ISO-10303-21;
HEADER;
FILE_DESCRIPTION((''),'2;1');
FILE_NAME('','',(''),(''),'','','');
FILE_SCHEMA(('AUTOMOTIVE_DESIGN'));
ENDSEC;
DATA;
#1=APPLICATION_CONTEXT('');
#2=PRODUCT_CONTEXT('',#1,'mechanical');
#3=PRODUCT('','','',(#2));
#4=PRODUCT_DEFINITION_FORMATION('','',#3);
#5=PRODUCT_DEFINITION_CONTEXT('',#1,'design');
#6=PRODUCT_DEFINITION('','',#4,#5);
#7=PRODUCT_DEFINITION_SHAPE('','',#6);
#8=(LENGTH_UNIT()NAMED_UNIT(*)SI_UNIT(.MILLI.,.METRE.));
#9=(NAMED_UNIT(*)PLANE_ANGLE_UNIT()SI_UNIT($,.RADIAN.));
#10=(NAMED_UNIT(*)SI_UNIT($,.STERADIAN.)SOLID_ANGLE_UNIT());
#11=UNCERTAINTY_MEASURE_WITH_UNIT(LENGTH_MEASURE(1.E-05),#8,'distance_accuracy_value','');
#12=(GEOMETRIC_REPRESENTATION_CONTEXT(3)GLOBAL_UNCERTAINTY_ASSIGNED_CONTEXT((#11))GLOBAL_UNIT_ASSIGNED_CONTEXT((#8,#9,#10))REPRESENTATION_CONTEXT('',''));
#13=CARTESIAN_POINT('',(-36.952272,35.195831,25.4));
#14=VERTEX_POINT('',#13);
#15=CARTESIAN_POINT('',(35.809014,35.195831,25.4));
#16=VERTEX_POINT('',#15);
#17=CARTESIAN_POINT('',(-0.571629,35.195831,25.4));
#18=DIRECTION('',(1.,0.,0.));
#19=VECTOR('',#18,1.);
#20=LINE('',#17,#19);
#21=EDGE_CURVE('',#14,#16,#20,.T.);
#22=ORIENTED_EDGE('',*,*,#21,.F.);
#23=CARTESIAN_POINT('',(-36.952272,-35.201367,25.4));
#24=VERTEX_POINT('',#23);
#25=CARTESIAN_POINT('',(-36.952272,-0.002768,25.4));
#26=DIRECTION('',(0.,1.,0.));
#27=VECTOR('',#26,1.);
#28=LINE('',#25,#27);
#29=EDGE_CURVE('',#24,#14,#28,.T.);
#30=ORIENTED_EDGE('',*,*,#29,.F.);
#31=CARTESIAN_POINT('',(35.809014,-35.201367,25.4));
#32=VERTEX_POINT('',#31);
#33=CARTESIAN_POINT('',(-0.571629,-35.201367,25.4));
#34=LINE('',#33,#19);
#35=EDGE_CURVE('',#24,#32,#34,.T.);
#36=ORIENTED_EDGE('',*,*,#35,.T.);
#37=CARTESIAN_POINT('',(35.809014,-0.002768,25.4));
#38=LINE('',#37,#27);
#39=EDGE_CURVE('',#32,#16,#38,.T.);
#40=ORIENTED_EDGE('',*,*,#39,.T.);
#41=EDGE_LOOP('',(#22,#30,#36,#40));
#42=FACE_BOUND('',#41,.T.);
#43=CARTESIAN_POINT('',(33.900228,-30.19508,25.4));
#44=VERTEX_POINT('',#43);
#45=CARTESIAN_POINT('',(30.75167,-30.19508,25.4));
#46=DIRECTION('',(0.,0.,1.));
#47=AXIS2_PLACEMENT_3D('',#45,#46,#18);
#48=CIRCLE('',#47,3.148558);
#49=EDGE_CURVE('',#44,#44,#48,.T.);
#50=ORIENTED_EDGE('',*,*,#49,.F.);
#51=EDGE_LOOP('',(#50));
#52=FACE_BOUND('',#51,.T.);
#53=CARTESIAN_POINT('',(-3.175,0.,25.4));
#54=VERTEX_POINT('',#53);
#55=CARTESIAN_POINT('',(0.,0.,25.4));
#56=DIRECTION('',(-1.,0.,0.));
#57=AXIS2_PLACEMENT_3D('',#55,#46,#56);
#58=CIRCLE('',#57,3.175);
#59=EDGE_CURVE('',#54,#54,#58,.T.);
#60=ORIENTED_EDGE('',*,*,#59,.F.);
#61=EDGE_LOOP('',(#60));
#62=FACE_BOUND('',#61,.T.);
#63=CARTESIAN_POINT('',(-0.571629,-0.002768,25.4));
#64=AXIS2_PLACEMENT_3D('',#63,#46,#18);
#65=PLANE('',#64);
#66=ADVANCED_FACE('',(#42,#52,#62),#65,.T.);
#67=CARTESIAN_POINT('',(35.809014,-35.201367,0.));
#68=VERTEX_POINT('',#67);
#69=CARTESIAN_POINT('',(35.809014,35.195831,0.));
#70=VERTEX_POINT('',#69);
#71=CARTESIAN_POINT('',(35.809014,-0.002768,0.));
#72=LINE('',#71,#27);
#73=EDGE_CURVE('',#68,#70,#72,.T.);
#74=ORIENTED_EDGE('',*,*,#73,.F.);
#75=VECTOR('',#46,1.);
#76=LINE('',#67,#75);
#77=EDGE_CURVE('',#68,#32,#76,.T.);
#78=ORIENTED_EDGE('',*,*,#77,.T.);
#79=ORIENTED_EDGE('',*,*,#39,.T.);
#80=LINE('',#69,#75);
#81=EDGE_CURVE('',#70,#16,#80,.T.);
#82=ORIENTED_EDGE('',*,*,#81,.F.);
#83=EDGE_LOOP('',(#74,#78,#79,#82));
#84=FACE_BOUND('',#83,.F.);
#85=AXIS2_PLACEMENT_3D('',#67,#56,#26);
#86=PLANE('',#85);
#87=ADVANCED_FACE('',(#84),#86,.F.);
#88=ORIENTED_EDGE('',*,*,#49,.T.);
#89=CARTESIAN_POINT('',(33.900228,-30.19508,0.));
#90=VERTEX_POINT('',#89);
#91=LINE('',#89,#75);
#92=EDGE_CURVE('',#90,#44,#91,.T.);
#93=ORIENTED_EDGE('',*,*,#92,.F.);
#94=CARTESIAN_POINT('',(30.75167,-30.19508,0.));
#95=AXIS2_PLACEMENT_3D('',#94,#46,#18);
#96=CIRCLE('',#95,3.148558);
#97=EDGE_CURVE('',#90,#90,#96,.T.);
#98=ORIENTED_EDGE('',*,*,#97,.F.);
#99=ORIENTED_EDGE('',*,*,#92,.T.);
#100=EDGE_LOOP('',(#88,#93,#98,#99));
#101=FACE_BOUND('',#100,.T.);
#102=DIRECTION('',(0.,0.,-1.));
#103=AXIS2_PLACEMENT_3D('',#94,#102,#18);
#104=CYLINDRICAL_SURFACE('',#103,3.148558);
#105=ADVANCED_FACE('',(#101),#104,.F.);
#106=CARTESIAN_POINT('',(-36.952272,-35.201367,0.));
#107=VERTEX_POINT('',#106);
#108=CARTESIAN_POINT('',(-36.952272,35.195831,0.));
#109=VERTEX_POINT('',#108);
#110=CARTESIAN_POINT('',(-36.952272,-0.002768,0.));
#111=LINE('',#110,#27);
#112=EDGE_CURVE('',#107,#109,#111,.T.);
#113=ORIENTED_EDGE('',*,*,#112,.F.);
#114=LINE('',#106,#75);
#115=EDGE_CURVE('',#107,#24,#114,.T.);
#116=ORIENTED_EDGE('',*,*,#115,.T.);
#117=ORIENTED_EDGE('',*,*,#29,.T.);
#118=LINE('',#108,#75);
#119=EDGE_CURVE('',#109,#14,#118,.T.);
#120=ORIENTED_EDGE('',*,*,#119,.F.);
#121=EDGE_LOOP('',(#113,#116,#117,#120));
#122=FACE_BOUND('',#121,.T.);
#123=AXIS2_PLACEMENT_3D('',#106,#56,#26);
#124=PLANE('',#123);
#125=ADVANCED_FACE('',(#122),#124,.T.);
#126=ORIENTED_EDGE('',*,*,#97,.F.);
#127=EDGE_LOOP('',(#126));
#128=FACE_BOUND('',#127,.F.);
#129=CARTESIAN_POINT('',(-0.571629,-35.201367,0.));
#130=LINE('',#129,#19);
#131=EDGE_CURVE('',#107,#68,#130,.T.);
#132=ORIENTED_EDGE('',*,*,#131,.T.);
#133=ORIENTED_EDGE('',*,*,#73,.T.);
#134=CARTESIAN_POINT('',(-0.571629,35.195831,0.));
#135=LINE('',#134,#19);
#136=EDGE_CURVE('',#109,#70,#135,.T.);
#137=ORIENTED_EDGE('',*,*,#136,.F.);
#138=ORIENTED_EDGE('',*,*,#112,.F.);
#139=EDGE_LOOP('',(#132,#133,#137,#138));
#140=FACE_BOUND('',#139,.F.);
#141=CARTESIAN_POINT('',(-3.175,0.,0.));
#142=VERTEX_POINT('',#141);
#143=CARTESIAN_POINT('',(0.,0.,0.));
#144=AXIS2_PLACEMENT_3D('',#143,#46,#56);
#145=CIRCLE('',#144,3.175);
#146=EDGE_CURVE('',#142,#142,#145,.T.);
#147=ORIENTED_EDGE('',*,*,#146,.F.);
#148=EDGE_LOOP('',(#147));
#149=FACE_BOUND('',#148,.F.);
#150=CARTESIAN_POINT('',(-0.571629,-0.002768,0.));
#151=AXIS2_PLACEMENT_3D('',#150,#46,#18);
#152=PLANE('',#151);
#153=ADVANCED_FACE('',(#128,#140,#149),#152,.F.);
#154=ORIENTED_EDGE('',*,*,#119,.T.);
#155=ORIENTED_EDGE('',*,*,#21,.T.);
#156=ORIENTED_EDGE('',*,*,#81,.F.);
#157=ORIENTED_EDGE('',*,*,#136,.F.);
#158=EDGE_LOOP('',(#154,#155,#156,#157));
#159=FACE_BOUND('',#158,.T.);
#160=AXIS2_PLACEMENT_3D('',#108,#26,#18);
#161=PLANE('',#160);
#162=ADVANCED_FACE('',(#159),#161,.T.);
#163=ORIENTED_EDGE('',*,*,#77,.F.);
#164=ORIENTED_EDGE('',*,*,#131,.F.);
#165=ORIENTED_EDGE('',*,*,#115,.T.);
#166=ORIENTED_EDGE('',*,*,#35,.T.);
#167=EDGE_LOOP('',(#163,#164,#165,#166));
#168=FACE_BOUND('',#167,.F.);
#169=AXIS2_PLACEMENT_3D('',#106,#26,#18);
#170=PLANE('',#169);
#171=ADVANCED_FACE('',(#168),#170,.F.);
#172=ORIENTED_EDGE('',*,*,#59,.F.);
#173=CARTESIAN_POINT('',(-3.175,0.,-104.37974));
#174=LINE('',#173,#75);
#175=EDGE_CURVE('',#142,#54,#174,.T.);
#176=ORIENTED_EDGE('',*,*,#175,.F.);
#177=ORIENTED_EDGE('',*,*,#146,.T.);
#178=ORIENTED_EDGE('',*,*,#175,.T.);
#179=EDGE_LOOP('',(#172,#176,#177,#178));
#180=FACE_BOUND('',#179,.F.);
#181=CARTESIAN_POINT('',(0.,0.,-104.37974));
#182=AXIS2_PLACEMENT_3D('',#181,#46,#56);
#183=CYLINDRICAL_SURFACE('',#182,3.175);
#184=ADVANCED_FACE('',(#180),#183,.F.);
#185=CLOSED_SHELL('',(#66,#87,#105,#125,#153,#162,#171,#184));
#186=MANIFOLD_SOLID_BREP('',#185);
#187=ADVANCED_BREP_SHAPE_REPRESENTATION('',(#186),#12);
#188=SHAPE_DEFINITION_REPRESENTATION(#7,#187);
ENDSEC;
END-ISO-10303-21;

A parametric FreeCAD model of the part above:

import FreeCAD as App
import Part
import Sketcher

V = App.Vector
Q = App.Units.Quantity

doc = App.newDocument("Part")
body = doc.addObject("PartDesign::Body", "Body")

sketch1 = body.newObject("Sketcher::SketchObject", "Sketch")
sketch1.AttachmentSupport = (doc.getObject("XY_Plane"), [""])
sketch1.MapMode = "FlatFace"
sketch1.addGeometry([
    Part.LineSegment(V(-36.952272, 35.195831, 0), V(-36.952272, -35.201367, 0)),
    Part.LineSegment(V(-36.952272, -35.201367, 0), V(35.809014, -35.201367, 0)),
    Part.LineSegment(V(35.809014, -35.201367, 0), V(35.809014, 35.195831, 0)),
    Part.LineSegment(V(35.809014, 35.195831, 0), V(-36.952272, 35.195831, 0)),
], False)
sketch1.addConstraint([
    Sketcher.Constraint("Coincident", 0, 2, 1, 1),
    Sketcher.Constraint("Coincident", 1, 2, 2, 1),
    Sketcher.Constraint("Coincident", 2, 2, 3, 1),
    Sketcher.Constraint("Coincident", 3, 2, 0, 1),
    Sketcher.Constraint("Vertical", 0),
    Sketcher.Constraint("Horizontal", 1),
    Sketcher.Constraint("Vertical", 2),
    Sketcher.Constraint("Horizontal", 3),
    Sketcher.Constraint("DistanceY", 0, 2, 0, 1, Q("70.397198 mm")),
    Sketcher.Constraint("DistanceX", 1, 1, 1, 2, Q("72.761286 mm")),
    Sketcher.Constraint("DistanceY", -1, 1, 2, 2, Q("35.195831 mm")),
    Sketcher.Constraint("DistanceX", 0, 2, -1, 1, Q("36.952272 mm")),
])
pad1 = body.newObject("PartDesign::Pad", "Pad")
pad1.Profile = sketch1
pad1.Length = Q("1 in")
body2 = doc.addObject("PartDesign::Body", "Body001")

sketch2 = body2.newObject("Sketcher::SketchObject", "Sketch001")
sketch2.AttachmentSupport = (doc.getObject("XY_Plane001"), [""])
sketch2.MapMode = "FlatFace"
sketch2.addGeometry(Part.Circle(V(30.75167, -30.19508, 0), V(0, 0, 1), 3.148558), False)
sketch2.addConstraint([
    Sketcher.Constraint("Diameter", 0, Q("6.297116 mm")),
    Sketcher.Constraint("DistanceX", -1, 1, 0, 3, Q("30.75167 mm")),
    Sketcher.Constraint("DistanceY", 0, 3, -1, 1, Q("30.19508 mm")),
])
pad2 = body2.newObject("PartDesign::Pad", "Pad001")
pad2.Profile = sketch2
pad2.Length = Q("1 in")
doc.recompute()

boolean = body.newObject("PartDesign::Boolean", "Boolean")
boolean.Type = "Cut"
boolean.addObjects([body2])

sketch3 = body.newObject("Sketcher::SketchObject", "Sketch002")
sketch3.AttachmentSupport = (doc.getObject("XY_Plane"), [""])
sketch3.MapMode = "FlatFace"
sketch3.addGeometry(Part.Circle(V(0, 0, 0), V(0, 0, 1), 3.175), False)
sketch3.addConstraint([
    Sketcher.Constraint("Coincident", 0, 3, -1, 1),
    Sketcher.Constraint("Diameter", 0, Q("0.25 in")),
])
doc.recompute()
hole = body.newObject("PartDesign::Hole", "Hole")
hole.Profile = sketch3
hole.ThreadType = "None"
hole.Diameter = Q("0.25 in")
hole.DepthType = "ThroughAll"
hole.Reversed = True

doc.recompute()
